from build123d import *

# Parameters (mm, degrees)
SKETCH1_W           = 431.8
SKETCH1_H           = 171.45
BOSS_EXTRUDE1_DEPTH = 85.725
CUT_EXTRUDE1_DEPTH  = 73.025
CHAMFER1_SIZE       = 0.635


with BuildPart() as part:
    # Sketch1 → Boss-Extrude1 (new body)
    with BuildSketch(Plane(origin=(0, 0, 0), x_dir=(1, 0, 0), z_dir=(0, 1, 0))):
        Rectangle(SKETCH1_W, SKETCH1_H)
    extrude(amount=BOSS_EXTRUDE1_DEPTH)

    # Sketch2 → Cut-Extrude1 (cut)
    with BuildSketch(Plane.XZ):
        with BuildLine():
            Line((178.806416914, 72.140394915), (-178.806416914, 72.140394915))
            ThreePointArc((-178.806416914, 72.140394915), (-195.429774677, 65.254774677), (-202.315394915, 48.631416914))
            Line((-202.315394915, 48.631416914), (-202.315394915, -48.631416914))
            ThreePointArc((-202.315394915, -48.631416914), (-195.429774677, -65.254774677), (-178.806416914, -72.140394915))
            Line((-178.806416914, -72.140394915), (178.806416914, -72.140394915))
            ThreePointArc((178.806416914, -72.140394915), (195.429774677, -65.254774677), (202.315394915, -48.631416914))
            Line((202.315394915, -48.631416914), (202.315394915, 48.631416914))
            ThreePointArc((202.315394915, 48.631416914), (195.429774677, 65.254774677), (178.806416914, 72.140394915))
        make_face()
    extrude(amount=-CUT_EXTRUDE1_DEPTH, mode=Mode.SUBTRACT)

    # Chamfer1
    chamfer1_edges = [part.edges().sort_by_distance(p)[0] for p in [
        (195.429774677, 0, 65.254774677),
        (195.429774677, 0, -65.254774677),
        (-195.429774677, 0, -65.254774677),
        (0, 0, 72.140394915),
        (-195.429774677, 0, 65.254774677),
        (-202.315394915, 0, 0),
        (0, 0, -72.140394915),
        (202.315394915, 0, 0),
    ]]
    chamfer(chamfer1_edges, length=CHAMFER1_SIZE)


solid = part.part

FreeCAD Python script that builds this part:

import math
import FreeCAD as App
import Part
import Sketcher
Q = App.Units.Quantity


def edges_at(feature, points):
    """Names of the edges that pass closest to the given points."""
    edges = feature.Shape.Edges
    near = lambda p: min(range(len(edges)), key=lambda i: edges[i].distToShape(Part.Vertex(*p))[0])
    return sorted({f"Edge{near(p) + 1}" for p in points})

doc = App.newDocument("Part")
body = doc.addObject("PartDesign::Body", "Body")

sketch1 = body.newObject("Sketcher::SketchObject", "Sketch")
sketch1.AttachmentSupport = (doc.getObject("XZ_Plane"), [""])
sketch1.MapMode = "FlatFace"
sketch1.addGeometry([
    Part.LineSegment(App.Vector(-216, -86, 0), App.Vector(-216, 86, 0)),
    Part.LineSegment(App.Vector(-216, 86, 0), App.Vector(216, 86, 0)),
    Part.LineSegment(App.Vector(216, 86, 0), App.Vector(216, -86, 0)),
    Part.LineSegment(App.Vector(216, -86, 0), App.Vector(-216, -86, 0)),
], False)
sketch1.addConstraint([
    Sketcher.Constraint("Coincident", 0, 2, 1, 1),
    Sketcher.Constraint("Coincident", 1, 2, 2, 1),
    Sketcher.Constraint("Coincident", 2, 2, 3, 1),
    Sketcher.Constraint("Coincident", 3, 2, 0, 1),
    Sketcher.Constraint("Vertical", 0),
    Sketcher.Constraint("Horizontal", 1),
    Sketcher.Constraint("Vertical", 2),
    Sketcher.Constraint("Horizontal", 3),
    Sketcher.Constraint("Symmetric", 0, 2, 2, 2, -1, 1),
    Sketcher.Constraint("DistanceX", 1, 1, 1, 2, Q("17 in")),
    Sketcher.Constraint("DistanceY", 0, 1, 0, 2, Q("6.75 in")),
])
pad1 = body.newObject("PartDesign::Pad", "Pad")
pad1.Profile = sketch1
pad1.Length = Q("3.375 in")
pad1.Reversed = True

sketch2 = body.newObject("Sketcher::SketchObject", "Sketch001")
sketch2.AttachmentSupport = (doc.getObject("XZ_Plane"), [""])
sketch2.MapMode = "FlatFace"
sketch2.addGeometry([
    Part.LineSegment(App.Vector(179, 72, 0), App.Vector(-179, 72, 0)),
    Part.ArcOfCircle(Part.Circle(App.Vector(-179, 49, 0), App.Vector(0, 0, 1), 24), math.radians(90), math.radians(180)),
    Part.LineSegment(App.Vector(-202, 49, 0), App.Vector(-202, -49, 0)),
    Part.ArcOfCircle(Part.Circle(App.Vector(-179, -49, 0), App.Vector(0, 0, 1), 24), math.radians(-180), math.radians(-90)),
    Part.LineSegment(App.Vector(-179, -72, 0), App.Vector(179, -72, 0)),
    Part.ArcOfCircle(Part.Circle(App.Vector(179, -49, 0), App.Vector(0, 0, 1), 24), math.radians(-90), math.radians(0)),
    Part.LineSegment(App.Vector(202, -49, 0), App.Vector(202, 49, 0)),
    Part.ArcOfCircle(Part.Circle(App.Vector(179, 49, 0), App.Vector(0, 0, 1), 24), math.radians(0), math.radians(90)),
], False)
sketch2.addConstraint([
    Sketcher.Constraint("Tangent", 0, 2, 1, 1),
    Sketcher.Constraint("Tangent", 1, 2, 2, 1),
    Sketcher.Constraint("Tangent", 2, 2, 3, 1),
    Sketcher.Constraint("Tangent", 3, 2, 4, 1),
    Sketcher.Constraint("Tangent", 4, 2, 5, 1),
    Sketcher.Constraint("Tangent", 5, 2, 6, 1),
    Sketcher.Constraint("Tangent", 6, 2, 7, 1),
    Sketcher.Constraint("Tangent", 7, 2, 0, 1),
    Sketcher.Constraint("Horizontal", 0),
    Sketcher.Constraint("Vertical", 2),
    Sketcher.Constraint("Horizontal", 4),
    Sketcher.Constraint("Vertical", 6),
    Sketcher.Constraint("Equal", 1, 3),
    Sketcher.Constraint("Equal", 3, 5),
    Sketcher.Constraint("Equal", 5, 7),
    Sketcher.Constraint("Symmetric", 1, 3, 5, 3, -1, 1),
    Sketcher.Constraint("Radius", 1, 23.508978),
    Sketcher.Constraint("DistanceX", 0, 2, 0, 1, 357.612834),
    Sketcher.Constraint("DistanceY", 2, 2, 2, 1, 97.262834),
])
pocket1 = body.newObject("PartDesign::Pocket", "Pocket")
pocket1.Profile = sketch2
pocket1.Length = Q("2.875 in")
doc.recompute()

chamfer = body.newObject("PartDesign::Chamfer", "Chamfer")
chamfer.Base = (pocket1, edges_at(pocket1, [
    (195.43, 0, 65.255),
    (195.43, 0, -65.255),
    (-195.43, 0, -65.255),
    (0, 0, 72.14),
    (-195.43, 0, 65.255),
    (-202.315, 0, 0),
    (0, 0, -72.14),
    (202.315, 0, 0),
]))
chamfer.Size = Q("0.025 in")

doc.recompute()
